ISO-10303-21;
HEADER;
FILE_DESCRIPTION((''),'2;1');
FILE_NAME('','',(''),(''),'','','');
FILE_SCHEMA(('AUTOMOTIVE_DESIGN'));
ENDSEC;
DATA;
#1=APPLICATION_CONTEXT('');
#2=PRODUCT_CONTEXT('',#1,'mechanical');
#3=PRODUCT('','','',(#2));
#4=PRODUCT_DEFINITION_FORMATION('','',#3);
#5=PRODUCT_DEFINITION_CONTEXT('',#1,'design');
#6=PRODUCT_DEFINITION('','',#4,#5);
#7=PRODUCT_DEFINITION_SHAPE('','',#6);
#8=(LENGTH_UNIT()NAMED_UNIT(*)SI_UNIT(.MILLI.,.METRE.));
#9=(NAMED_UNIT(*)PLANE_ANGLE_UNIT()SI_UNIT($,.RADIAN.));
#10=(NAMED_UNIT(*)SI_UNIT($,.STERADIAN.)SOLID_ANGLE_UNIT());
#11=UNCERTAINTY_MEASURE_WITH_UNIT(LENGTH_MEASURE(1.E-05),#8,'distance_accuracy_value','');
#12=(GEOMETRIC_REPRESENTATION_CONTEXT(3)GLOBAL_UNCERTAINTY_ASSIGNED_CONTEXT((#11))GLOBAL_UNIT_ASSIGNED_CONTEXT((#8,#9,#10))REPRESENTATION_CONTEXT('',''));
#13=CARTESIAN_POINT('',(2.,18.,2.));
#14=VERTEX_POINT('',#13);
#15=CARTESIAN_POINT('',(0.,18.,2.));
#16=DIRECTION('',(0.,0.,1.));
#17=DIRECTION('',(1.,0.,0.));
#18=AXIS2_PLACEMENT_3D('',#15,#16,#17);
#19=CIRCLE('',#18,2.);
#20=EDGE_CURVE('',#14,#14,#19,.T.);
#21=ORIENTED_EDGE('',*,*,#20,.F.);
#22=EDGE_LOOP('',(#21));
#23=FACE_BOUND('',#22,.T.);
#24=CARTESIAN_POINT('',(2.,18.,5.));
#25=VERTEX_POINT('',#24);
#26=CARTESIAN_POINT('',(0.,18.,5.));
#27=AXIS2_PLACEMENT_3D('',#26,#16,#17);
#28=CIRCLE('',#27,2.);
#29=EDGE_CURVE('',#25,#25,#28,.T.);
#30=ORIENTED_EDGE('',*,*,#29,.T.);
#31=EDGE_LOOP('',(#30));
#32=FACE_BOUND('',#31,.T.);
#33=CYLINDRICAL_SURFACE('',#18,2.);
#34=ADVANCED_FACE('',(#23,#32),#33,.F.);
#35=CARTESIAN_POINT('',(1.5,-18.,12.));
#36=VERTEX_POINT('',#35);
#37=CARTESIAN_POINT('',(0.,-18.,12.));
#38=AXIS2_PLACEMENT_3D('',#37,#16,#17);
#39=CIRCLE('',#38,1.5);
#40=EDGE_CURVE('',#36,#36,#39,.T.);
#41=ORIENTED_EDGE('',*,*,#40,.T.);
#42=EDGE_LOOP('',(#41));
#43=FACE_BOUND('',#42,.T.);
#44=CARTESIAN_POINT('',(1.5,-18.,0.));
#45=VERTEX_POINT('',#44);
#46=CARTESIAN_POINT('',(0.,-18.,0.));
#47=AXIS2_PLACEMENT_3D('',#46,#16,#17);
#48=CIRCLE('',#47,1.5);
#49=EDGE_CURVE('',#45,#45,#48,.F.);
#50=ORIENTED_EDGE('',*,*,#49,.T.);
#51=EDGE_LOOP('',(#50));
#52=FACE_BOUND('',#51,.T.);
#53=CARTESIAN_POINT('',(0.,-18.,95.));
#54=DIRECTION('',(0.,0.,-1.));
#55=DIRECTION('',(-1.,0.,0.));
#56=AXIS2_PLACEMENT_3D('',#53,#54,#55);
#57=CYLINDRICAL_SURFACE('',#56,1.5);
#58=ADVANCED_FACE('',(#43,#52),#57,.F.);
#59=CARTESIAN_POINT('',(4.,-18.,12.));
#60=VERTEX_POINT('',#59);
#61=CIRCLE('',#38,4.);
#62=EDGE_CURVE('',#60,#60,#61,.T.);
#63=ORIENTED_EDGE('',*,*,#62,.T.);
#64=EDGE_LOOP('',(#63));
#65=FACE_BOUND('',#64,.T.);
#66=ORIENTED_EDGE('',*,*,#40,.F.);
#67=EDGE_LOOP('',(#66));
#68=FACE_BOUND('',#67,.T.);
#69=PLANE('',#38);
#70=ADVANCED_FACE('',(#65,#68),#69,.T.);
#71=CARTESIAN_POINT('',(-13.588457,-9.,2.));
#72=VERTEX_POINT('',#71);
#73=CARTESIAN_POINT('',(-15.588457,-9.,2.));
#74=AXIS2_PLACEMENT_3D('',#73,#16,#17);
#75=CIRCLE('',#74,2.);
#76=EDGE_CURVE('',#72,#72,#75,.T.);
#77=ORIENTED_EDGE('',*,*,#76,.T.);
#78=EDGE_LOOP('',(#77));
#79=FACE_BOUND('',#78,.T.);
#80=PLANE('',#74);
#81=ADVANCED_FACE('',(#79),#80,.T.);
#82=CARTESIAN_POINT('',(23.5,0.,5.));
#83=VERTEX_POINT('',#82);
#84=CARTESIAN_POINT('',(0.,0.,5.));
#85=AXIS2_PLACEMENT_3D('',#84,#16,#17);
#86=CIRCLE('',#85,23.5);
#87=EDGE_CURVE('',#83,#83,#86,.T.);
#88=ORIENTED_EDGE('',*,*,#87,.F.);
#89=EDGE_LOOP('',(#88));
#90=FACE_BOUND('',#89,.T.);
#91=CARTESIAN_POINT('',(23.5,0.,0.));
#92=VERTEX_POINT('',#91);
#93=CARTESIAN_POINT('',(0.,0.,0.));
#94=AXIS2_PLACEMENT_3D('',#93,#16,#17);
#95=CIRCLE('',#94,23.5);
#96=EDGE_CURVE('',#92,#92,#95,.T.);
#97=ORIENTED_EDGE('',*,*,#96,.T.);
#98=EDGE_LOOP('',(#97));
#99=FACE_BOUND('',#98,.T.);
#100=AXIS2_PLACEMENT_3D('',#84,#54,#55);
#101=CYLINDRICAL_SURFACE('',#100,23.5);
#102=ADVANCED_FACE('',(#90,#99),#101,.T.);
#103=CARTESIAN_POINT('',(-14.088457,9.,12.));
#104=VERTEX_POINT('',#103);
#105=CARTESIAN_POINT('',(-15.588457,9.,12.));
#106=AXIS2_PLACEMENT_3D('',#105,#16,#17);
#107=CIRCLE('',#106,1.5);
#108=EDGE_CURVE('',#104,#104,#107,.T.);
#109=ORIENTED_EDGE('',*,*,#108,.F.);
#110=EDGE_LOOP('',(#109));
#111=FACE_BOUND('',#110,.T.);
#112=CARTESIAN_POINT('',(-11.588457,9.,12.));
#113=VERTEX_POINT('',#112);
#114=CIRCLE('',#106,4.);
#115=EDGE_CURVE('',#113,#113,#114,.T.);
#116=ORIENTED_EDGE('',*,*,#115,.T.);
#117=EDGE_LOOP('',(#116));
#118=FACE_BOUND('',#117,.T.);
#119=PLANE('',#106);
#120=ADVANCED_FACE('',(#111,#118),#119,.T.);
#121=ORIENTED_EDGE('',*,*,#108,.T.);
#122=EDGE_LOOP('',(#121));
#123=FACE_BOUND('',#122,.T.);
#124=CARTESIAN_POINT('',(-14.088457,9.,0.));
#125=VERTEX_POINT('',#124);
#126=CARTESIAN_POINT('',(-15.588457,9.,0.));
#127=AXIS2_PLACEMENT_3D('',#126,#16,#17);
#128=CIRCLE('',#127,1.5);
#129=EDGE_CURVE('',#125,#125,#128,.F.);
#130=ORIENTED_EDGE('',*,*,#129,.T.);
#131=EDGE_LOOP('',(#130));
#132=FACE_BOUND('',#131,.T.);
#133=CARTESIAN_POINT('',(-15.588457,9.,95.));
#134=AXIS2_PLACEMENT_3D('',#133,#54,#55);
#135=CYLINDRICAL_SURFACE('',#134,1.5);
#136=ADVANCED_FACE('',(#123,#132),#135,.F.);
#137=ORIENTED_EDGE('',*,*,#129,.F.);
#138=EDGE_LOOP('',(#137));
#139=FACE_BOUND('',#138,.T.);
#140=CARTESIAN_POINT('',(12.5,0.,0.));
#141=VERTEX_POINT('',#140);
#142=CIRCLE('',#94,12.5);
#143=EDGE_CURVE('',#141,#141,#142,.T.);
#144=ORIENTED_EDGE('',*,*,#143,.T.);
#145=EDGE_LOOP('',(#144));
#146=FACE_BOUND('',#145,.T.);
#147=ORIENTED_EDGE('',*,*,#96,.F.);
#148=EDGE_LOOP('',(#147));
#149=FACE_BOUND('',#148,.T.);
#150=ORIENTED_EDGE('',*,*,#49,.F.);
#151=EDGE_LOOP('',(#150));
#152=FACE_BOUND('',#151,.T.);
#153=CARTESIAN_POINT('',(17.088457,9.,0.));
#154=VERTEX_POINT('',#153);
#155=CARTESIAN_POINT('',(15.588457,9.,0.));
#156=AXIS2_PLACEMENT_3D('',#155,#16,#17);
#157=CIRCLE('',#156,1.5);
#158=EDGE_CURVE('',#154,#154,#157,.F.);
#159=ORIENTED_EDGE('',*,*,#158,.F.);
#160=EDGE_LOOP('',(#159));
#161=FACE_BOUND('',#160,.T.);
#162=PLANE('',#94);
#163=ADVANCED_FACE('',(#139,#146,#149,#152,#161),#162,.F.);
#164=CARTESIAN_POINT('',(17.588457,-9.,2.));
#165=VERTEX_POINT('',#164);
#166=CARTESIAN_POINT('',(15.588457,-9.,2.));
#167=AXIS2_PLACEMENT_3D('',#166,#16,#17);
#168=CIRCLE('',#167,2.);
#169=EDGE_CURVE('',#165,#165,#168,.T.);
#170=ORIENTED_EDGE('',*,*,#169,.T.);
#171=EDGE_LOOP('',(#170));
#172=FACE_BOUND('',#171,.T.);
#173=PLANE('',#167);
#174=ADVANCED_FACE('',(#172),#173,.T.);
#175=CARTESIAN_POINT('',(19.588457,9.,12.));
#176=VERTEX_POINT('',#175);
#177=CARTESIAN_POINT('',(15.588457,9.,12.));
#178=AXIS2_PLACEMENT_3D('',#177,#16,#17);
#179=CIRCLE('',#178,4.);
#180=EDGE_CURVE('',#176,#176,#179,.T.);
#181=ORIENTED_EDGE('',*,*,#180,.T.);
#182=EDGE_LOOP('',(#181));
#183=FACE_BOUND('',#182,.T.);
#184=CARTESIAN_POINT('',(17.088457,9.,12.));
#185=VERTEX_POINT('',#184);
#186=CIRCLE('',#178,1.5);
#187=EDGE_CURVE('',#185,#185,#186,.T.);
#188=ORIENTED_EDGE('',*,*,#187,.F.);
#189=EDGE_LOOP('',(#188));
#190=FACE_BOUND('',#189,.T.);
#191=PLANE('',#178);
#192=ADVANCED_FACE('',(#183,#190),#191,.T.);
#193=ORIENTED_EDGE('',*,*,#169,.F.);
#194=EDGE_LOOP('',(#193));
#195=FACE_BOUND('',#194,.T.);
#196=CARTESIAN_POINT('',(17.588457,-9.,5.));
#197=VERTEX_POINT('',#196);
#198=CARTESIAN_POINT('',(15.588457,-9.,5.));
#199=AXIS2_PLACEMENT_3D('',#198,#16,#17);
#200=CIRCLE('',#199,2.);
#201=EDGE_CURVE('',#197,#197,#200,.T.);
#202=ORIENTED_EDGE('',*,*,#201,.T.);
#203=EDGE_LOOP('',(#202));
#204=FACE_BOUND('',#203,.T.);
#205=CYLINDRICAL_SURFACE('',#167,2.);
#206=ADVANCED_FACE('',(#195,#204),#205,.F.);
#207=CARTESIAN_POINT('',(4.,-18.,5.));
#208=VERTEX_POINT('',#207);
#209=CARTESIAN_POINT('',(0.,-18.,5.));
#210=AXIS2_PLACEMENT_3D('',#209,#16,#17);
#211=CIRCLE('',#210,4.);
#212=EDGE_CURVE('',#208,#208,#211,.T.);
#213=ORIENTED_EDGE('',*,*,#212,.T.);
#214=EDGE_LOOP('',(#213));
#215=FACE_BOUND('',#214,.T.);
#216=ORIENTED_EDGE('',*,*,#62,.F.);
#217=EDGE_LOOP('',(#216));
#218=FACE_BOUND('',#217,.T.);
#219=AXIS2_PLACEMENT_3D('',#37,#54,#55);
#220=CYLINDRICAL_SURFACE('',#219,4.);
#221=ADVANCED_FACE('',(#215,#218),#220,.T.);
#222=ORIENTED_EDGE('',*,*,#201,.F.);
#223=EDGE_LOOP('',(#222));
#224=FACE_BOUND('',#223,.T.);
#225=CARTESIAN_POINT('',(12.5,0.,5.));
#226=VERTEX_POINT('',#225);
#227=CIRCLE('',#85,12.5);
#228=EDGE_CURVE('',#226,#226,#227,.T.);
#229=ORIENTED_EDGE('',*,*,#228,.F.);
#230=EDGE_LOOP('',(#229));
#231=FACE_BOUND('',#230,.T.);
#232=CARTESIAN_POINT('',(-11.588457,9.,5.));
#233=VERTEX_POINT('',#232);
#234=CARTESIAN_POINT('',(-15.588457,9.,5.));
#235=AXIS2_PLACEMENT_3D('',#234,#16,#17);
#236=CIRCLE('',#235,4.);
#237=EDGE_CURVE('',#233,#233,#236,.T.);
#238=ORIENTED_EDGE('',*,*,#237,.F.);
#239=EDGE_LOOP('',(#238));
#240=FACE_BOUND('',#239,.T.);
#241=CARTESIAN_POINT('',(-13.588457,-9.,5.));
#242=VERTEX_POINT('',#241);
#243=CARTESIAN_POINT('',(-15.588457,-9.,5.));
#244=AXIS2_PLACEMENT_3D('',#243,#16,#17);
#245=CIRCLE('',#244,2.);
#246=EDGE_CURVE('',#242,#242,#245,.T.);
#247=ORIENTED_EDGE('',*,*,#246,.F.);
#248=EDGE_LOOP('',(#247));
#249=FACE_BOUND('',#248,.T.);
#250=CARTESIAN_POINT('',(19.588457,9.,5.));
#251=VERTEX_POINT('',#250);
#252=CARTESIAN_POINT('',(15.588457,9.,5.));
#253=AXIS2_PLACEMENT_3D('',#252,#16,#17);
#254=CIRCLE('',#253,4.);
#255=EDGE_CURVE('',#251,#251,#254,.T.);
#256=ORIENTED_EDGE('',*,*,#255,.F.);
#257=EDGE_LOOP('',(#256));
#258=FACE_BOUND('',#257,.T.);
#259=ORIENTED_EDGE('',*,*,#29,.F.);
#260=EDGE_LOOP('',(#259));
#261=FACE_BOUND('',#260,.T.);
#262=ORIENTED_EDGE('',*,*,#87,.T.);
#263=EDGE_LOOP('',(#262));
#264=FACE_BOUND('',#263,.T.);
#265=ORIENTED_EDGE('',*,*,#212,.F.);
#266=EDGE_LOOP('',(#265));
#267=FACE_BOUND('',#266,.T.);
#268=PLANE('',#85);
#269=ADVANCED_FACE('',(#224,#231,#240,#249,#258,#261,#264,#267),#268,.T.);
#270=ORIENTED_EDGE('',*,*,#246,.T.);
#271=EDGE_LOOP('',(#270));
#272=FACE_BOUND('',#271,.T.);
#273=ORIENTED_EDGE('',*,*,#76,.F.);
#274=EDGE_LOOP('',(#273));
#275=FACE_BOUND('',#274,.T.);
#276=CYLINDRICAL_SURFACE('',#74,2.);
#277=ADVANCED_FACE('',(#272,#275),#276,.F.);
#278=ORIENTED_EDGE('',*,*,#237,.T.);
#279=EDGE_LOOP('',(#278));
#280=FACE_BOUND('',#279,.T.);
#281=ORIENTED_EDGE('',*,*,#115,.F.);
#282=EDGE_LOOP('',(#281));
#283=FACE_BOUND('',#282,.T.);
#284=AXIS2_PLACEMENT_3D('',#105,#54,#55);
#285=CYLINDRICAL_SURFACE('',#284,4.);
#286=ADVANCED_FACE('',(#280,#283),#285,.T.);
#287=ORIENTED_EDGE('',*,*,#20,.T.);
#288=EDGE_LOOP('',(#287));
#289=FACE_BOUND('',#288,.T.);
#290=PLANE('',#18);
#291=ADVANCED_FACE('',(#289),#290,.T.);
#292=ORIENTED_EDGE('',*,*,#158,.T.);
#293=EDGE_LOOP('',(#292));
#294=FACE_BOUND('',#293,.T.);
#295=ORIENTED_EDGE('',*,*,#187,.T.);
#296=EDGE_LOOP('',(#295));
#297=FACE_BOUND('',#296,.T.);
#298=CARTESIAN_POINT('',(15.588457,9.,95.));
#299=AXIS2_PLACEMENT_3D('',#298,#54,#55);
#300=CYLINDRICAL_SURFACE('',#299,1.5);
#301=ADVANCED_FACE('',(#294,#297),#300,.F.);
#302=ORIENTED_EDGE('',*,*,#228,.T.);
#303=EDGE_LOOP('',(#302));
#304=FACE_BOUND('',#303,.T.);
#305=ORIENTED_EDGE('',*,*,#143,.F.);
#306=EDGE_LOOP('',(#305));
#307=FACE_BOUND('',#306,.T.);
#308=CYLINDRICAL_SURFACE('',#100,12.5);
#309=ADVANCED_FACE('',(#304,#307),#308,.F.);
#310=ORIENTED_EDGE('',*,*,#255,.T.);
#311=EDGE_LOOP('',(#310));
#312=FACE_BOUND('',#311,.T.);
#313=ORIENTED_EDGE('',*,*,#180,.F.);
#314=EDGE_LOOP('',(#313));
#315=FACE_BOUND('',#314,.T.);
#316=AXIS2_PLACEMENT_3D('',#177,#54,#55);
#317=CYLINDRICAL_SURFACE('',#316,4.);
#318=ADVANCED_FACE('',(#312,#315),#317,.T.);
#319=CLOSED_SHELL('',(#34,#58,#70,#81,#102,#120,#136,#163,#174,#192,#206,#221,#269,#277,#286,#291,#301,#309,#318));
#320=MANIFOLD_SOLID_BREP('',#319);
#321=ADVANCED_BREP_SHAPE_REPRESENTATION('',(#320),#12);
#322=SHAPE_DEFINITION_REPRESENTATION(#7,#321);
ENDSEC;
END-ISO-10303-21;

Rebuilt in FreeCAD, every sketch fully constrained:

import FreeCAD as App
import Part
import Sketcher
from FreeCAD import Vector
Q = App.Units.Quantity

doc = App.newDocument("Part")
params = doc.addObject("Spreadsheet::Sheet", "Params")
for row, (alias, value) in enumerate([
    ("sketch1_diameter", "47 mm"),
    ("sketch1_diameter2", "25 mm"),
    ("pad1_length", "5 mm"),
    ("sketch2_diameter", "4 mm"),
    ("pocket1_length", "3 mm"),
    ("sketch3_diameter", "3 mm"),
    ("sketch4_diameter", "8 mm"),
    ("sketch4_diameter2", "3 mm"),
    ("pad2_length", "7 mm"),
    ("sketch5_diameter", "8 mm"),
    ("sketch5_diameter2", "3 mm"),
    ("pad3_length", "3 mm"),
], start=1):
    params.set(f"A{row}", alias)
    params.set(f"B{row}", "=" + value)
    params.setAlias(f"B{row}", alias)

body = doc.addObject("PartDesign::Body", "Body")

sketch1 = body.newObject("Sketcher::SketchObject", "Sketch")
sketch1.AttachmentSupport = (doc.getObject("XY_Plane"), [""])
sketch1.MapMode = "FlatFace"
sketch1.addGeometry(Part.Circle(Vector(0, 0, 0), Vector(0, 0, 1), 23.5), False)
sketch1.addGeometry(Part.Circle(Vector(0, 0, 0), Vector(0, 0, 1), 12.5), False)
sketch1.addConstraint(Sketcher.Constraint("Coincident", 0, 3, -1, 1))
sketch1.addConstraint(Sketcher.Constraint("Coincident", 1, 3, -1, 1))
sketch1.addConstraint(Sketcher.Constraint("Diameter", 0, Q("47 mm")))
sketch1.addConstraint(Sketcher.Constraint("Diameter", 1, Q("25 mm")))
sketch1.setExpression("Constraints[2]", "Params.sketch1_diameter")
sketch1.setExpression("Constraints[3]", "Params.sketch1_diameter2")
pad1 = body.newObject("PartDesign::Pad", "Pad")
pad1.Profile = sketch1
pad1.setExpression("Length", "Params.pad1_length")

sketch2 = body.newObject("Sketcher::SketchObject", "Sketch001")
sketch2.AttachmentSupport = (doc.getObject("XY_Plane"), [""])
sketch2.MapMode = "FlatFace"
sketch2.AttachmentOffset = App.Placement(Vector(0, 0, 5), App.Rotation())
sketch2.addGeometry(Part.Circle(Vector(0, 18, 0), Vector(0, 0, 1), 2), False)
sketch2.addGeometry(Part.Circle(Vector(15.588457, -9, 0), Vector(0, 0, 1), 2), False)
sketch2.addGeometry(Part.Circle(Vector(-15.588457, -9, 0), Vector(0, 0, 1), 2), False)
sketch2.addConstraint(Sketcher.Constraint("Equal", 0, 1))
sketch2.addConstraint(Sketcher.Constraint("Equal", 1, 2))
sketch2.addConstraint(Sketcher.Constraint("Symmetric", 1, 3, 2, 3, -2))
sketch2.addConstraint(Sketcher.Constraint("PointOnObject", 0, 3, -2))
sketch2.addConstraint(Sketcher.Constraint("Diameter", 0, Q("4 mm")))
sketch2.addConstraint(Sketcher.Constraint("DistanceY", -1, 1, 0, 3, Q("18 mm")))
sketch2.addConstraint(Sketcher.Constraint("DistanceY", 1, 3, -1, 1, Q("9 mm")))
sketch2.addConstraint(Sketcher.Constraint("DistanceX", -1, 1, 1, 3, Q("15.588457 mm")))
sketch2.setExpression("Constraints[4]", "Params.sketch2_diameter")
pocket1 = body.newObject("PartDesign::Pocket", "Pocket")
pocket1.Profile = sketch2
pocket1.setExpression("Length", "Params.pocket1_length")

sketch3 = body.newObject("Sketcher::SketchObject", "Sketch002")
sketch3.AttachmentSupport = (doc.getObject("XY_Plane"), [""])
sketch3.MapMode = "FlatFace"
sketch3.AttachmentOffset = App.Placement(Vector(0, 0, 5), App.Rotation())
sketch3.addGeometry(Part.Circle(Vector(-15.588457, 9, 0), Vector(0, 0, 1), 1.5), False)
sketch3.addGeometry(Part.Circle(Vector(15.588457, 9, 0), Vector(0, 0, 1), 1.5), False)
sketch3.addGeometry(Part.Circle(Vector(0, -18, 0), Vector(0, 0, 1), 1.5), False)
sketch3.addConstraint(Sketcher.Constraint("Equal", 0, 1))
sketch3.addConstraint(Sketcher.Constraint("Equal", 1, 2))
sketch3.addConstraint(Sketcher.Constraint("Symmetric", 0, 3, 1, 3, -2))
sketch3.addConstraint(Sketcher.Constraint("PointOnObject", 2, 3, -2))
sketch3.addConstraint(Sketcher.Constraint("Diameter", 0, Q("3 mm")))
sketch3.addConstraint(Sketcher.Constraint("DistanceY", -1, 1, 0, 3, Q("9 mm")))
sketch3.addConstraint(Sketcher.Constraint("DistanceY", 2, 3, -1, 1, Q("18 mm")))
sketch3.addConstraint(Sketcher.Constraint("DistanceX", 0, 3, -1, 1, Q("15.588457 mm")))
sketch3.setExpression("Constraints[4]", "Params.sketch3_diameter")
pocket2 = body.newObject("PartDesign::Pocket", "Pocket001")
pocket2.Profile = sketch3
pocket2.Type = "ThroughAll"
pocket2.Midplane = True

sketch4 = body.newObject("Sketcher::SketchObject", "Sketch003")
sketch4.AttachmentSupport = (doc.getObject("XY_Plane"), [""])
sketch4.MapMode = "FlatFace"
sketch4.AttachmentOffset = App.Placement(Vector(0, 0, 5), App.Rotation())
sketch4.addGeometry(Part.Circle(Vector(-15.588457, 9, 0), Vector(0, 0, 1), 4), False)
sketch4.addGeometry(Part.Circle(Vector(-15.588457, 9, 0), Vector(0, 0, 1), 1.5), False)
sketch4.addGeometry(Part.Circle(Vector(15.588457, 9, 0), Vector(0, 0, 1), 4), False)
sketch4.addGeometry(Part.Circle(Vector(15.588457, 9, 0), Vector(0, 0, 1), 1.5), False)
sketch4.addGeometry(Part.Circle(Vector(0, -18, 0), Vector(0, 0, 1), 4), False)
sketch4.addGeometry(Part.Circle(Vector(0, -18, 0), Vector(0, 0, 1), 1.5), False)
sketch4.addConstraint(Sketcher.Constraint("Coincident", 1, 3, 0, 3))
sketch4.addConstraint(Sketcher.Constraint("Coincident", 3, 3, 2, 3))
sketch4.addConstraint(Sketcher.Constraint("Coincident", 5, 3, 4, 3))
sketch4.addConstraint(Sketcher.Constraint("Equal", 0, 2))
sketch4.addConstraint(Sketcher.Constraint("Equal", 1, 3))
sketch4.addConstraint(Sketcher.Constraint("Equal", 2, 4))
sketch4.addConstraint(Sketcher.Constraint("Equal", 3, 5))
sketch4.addConstraint(Sketcher.Constraint("Symmetric", 0, 3, 2, 3, -2))
sketch4.addConstraint(Sketcher.Constraint("PointOnObject", 4, 3, -2))
sketch4.addConstraint(Sketcher.Constraint("Diameter", 0, Q("8 mm")))
sketch4.addConstraint(Sketcher.Constraint("Diameter", 1, Q("3 mm")))
sketch4.addConstraint(Sketcher.Constraint("DistanceY", -1, 1, 0, 3, Q("9 mm")))
sketch4.addConstraint(Sketcher.Constraint("DistanceY", 4, 3, -1, 1, Q("18 mm")))
sketch4.addConstraint(Sketcher.Constraint("DistanceX", 0, 3, -1, 1, Q("15.588457 mm")))
sketch4.setExpression("Constraints[9]", "Params.sketch4_diameter")
sketch4.setExpression("Constraints[10]", "Params.sketch4_diameter2")
pad2 = body.newObject("PartDesign::Pad", "Pad001")
pad2.Profile = sketch4
pad2.setExpression("Length", "Params.pad2_length")

sketch5 = body.newObject("Sketcher::SketchObject", "Sketch004")
sketch5.AttachmentSupport = (doc.getObject("XY_Plane"), [""])
sketch5.MapMode = "FlatFace"
sketch5.AttachmentOffset = App.Placement(Vector(0, 0, 12), App.Rotation())
sketch5.addGeometry(Part.Circle(Vector(-15.588457, 9, 0), Vector(0, 0, 1), 4), False)
sketch5.addGeometry(Part.Circle(Vector(-15.588457, 9, 0), Vector(0, 0, 1), 1.5), False)
sketch5.addGeometry(Part.Circle(Vector(15.588457, 9, 0), Vector(0, 0, 1), 4), False)
sketch5.addGeometry(Part.Circle(Vector(15.588457, 9, 0), Vector(0, 0, 1), 1.5), False)
sketch5.addGeometry(Part.Circle(Vector(0, -18, 0), Vector(0, 0, 1), 4), False)
sketch5.addGeometry(Part.Circle(Vector(0, -18, 0), Vector(0, 0, 1), 1.5), False)
sketch5.addConstraint(Sketcher.Constraint("Coincident", 1, 3, 0, 3))
sketch5.addConstraint(Sketcher.Constraint("Coincident", 3, 3, 2, 3))
sketch5.addConstraint(Sketcher.Constraint("Coincident", 5, 3, 4, 3))
sketch5.addConstraint(Sketcher.Constraint("Equal", 0, 2))
sketch5.addConstraint(Sketcher.Constraint("Equal", 1, 3))
sketch5.addConstraint(Sketcher.Constraint("Equal", 2, 4))
sketch5.addConstraint(Sketcher.Constraint("Equal", 3, 5))
sketch5.addConstraint(Sketcher.Constraint("Symmetric", 0, 3, 2, 3, -2))
sketch5.addConstraint(Sketcher.Constraint("PointOnObject", 4, 3, -2))
sketch5.addConstraint(Sketcher.Constraint("Diameter", 0, Q("8 mm")))
sketch5.addConstraint(Sketcher.Constraint("Diameter", 1, Q("3 mm")))
sketch5.addConstraint(Sketcher.Constraint("DistanceY", -1, 1, 0, 3, Q("9 mm")))
sketch5.addConstraint(Sketcher.Constraint("DistanceY", 4, 3, -1, 1, Q("18 mm")))
sketch5.addConstraint(Sketcher.Constraint("DistanceX", 0, 3, -1, 1, Q("15.588457 mm")))
sketch5.setExpression("Constraints[9]", "Params.sketch5_diameter")
sketch5.setExpression("Constraints[10]", "Params.sketch5_diameter2")
pad3 = body.newObject("PartDesign::Pad", "Pad002")
pad3.Profile = sketch5
pad3.setExpression("Length", "Params.pad3_length")
pad3.Reversed = True

doc.recompute()
